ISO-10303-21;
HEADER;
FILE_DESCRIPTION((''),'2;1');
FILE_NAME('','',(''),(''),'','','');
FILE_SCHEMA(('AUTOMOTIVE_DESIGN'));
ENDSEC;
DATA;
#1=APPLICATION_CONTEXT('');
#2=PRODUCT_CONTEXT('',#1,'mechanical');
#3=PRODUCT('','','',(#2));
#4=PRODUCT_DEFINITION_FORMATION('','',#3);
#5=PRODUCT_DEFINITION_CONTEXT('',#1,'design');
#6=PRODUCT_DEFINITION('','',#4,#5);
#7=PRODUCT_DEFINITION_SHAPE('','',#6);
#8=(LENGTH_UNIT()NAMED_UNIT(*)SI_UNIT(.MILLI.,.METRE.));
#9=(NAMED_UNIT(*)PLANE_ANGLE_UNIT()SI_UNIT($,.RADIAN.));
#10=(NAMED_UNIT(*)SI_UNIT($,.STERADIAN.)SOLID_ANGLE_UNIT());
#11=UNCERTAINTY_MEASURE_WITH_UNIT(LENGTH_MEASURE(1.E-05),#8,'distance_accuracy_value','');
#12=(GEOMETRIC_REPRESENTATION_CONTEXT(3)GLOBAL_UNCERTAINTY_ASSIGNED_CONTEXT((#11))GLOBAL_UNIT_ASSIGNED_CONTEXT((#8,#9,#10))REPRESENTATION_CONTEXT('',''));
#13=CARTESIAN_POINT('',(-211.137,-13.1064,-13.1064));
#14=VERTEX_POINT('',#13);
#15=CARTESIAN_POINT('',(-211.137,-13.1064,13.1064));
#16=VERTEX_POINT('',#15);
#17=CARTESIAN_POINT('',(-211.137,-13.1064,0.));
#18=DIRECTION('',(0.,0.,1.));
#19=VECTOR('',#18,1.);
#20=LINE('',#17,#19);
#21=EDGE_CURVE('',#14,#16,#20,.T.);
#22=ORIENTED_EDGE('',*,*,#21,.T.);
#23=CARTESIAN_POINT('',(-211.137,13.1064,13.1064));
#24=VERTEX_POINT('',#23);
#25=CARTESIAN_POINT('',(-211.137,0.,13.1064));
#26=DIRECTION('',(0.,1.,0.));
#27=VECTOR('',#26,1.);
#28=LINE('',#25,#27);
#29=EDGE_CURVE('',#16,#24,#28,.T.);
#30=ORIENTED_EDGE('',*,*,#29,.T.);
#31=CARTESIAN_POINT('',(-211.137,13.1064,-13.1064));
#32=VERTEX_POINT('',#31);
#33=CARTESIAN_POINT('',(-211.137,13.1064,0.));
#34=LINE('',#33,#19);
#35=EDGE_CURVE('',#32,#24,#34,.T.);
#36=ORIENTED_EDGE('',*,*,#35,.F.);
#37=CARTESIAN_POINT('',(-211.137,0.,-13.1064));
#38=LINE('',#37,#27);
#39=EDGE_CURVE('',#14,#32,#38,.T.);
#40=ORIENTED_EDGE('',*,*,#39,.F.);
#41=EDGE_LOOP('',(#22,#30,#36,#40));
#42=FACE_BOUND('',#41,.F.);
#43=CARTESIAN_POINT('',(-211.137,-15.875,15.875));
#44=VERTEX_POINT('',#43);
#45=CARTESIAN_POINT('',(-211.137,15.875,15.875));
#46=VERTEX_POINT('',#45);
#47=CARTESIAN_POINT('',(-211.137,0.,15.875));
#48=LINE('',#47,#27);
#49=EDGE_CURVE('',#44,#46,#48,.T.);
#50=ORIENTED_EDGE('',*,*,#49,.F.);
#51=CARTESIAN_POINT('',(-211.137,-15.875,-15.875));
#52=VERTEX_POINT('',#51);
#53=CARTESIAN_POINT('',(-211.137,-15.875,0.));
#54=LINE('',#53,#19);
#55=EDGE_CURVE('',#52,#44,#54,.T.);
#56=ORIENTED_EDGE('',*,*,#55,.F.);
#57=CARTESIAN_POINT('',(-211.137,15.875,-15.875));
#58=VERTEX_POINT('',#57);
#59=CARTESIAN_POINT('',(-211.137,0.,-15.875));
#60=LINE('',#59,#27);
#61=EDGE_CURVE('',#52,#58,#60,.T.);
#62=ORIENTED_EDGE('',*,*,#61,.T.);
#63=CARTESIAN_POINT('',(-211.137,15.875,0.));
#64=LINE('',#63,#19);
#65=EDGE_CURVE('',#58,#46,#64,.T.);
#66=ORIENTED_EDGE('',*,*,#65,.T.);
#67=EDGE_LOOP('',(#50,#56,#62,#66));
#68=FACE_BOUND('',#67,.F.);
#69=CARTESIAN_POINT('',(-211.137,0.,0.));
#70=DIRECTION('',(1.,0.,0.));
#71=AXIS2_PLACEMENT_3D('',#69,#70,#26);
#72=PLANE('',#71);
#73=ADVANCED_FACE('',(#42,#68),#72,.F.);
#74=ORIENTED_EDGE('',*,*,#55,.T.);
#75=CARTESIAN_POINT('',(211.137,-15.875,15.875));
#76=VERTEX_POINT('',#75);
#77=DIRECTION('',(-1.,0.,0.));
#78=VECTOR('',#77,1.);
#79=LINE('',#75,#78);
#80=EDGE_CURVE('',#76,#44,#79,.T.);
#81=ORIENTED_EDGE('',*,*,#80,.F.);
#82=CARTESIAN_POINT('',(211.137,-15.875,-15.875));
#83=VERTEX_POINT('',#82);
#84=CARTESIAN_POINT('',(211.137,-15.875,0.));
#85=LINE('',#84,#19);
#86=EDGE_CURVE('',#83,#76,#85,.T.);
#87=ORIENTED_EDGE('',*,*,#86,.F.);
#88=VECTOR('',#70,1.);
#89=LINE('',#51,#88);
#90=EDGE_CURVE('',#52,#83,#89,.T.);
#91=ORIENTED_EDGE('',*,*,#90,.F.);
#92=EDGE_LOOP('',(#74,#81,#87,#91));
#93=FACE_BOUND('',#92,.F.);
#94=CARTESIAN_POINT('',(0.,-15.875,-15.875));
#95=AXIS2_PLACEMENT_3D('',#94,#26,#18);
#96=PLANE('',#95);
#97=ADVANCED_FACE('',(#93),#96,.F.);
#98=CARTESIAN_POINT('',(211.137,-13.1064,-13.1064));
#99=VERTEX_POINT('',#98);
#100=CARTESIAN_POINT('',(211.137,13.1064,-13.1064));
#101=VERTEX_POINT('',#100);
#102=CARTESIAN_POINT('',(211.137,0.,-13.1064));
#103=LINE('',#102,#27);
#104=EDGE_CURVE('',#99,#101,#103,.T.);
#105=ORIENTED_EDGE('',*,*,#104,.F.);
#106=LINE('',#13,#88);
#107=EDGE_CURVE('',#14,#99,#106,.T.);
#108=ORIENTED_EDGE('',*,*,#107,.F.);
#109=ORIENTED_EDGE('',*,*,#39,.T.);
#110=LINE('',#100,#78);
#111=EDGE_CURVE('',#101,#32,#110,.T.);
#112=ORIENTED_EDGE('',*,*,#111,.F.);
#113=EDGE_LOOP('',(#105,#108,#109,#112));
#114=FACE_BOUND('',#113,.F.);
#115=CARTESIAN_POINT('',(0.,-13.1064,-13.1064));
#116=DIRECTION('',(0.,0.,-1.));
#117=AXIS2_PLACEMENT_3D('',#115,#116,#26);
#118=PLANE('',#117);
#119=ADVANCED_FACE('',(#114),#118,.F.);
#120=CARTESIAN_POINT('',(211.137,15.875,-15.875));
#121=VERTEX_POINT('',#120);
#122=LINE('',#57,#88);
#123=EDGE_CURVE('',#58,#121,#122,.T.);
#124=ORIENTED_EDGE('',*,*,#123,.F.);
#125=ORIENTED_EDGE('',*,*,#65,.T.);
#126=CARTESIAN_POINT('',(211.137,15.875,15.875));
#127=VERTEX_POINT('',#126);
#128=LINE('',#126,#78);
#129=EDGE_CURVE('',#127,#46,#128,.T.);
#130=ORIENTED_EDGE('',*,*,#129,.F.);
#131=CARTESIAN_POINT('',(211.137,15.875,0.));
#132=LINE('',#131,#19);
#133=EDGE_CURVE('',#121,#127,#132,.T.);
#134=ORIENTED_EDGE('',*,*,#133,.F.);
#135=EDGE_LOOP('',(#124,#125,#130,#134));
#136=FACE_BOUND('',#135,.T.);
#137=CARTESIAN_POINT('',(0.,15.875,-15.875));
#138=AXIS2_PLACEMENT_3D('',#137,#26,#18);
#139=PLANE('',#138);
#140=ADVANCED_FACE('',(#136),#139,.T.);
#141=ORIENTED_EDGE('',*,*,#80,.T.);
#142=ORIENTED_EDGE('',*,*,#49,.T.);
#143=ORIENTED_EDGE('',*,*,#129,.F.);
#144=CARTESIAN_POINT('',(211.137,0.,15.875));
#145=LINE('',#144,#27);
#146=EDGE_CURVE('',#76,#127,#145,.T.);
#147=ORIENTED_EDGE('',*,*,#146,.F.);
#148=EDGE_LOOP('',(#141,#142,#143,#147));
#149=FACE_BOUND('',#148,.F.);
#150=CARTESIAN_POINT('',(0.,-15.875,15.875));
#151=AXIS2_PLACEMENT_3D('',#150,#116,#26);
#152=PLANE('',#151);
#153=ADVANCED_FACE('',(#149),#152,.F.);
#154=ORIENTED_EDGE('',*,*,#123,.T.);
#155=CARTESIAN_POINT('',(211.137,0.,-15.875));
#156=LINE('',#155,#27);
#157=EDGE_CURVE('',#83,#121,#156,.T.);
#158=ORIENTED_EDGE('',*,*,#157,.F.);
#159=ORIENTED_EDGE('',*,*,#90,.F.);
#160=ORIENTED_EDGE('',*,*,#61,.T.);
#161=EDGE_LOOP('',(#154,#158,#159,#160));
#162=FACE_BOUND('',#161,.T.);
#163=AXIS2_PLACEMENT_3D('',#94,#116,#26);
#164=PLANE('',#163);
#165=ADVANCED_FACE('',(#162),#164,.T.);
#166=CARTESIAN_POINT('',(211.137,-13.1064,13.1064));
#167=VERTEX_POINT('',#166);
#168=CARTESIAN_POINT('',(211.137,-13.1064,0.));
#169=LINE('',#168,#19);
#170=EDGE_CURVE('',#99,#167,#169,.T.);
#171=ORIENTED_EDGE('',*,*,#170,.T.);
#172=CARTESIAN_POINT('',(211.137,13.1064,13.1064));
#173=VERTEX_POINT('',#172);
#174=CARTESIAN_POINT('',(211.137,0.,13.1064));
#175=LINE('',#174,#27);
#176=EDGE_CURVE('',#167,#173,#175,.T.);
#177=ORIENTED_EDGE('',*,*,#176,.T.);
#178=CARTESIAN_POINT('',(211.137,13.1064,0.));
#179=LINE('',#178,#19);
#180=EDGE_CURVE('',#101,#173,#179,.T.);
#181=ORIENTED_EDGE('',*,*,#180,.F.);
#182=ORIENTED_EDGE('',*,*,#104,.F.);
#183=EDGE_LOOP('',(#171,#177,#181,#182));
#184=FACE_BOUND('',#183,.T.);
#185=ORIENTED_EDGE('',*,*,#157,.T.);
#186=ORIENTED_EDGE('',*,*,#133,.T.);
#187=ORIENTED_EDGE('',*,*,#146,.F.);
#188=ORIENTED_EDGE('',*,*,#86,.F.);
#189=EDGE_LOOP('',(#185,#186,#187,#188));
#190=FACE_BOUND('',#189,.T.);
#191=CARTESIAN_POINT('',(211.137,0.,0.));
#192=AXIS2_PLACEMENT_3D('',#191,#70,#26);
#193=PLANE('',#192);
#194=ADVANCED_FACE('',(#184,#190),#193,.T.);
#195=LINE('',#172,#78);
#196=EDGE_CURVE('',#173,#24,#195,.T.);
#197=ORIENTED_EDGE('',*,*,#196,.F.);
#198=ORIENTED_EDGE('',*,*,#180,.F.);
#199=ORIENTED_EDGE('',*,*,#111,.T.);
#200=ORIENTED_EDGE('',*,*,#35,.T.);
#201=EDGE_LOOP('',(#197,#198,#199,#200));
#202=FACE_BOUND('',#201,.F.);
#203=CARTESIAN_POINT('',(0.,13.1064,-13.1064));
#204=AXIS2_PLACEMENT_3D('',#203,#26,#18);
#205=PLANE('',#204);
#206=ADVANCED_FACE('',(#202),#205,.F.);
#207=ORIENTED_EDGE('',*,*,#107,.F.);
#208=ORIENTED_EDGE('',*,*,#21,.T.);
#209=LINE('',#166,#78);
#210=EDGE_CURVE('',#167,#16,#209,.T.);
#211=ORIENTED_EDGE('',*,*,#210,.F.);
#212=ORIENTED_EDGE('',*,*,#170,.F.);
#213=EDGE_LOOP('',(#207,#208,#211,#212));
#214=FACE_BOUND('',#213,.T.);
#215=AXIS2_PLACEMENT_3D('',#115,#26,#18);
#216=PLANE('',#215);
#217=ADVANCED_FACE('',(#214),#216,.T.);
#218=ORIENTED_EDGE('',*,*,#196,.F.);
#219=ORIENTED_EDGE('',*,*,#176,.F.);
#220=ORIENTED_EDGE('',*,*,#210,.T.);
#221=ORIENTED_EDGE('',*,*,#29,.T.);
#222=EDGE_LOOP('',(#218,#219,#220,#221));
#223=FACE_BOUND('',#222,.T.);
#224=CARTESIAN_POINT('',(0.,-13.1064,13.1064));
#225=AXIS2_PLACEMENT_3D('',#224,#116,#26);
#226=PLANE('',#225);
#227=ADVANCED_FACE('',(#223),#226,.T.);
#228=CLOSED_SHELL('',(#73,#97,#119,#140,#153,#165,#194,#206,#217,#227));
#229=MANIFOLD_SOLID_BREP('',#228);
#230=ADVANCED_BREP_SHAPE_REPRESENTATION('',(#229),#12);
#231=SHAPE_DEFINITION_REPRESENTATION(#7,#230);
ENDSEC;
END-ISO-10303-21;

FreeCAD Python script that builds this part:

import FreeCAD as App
import Part
import Sketcher

V = App.Vector
Q = App.Units.Quantity


def add_polygon(sketch, points):
    """Adds a closed chain of lines whose ends are joined by coincident constraints."""
    first, n = sketch.GeometryCount, len(points)
    for a, b in zip(points, points[1:] + points[:1]):
        sketch.addGeometry(Part.LineSegment(App.Vector(*a, 0), App.Vector(*b, 0)), False)
    for i in range(n):
        sketch.addConstraint(Sketcher.Constraint("Coincident", first + i, 2, first + (i + 1) % n, 1))

doc = App.newDocument("Part")
body = doc.addObject("PartDesign::Body", "Body")

sketch1 = doc.addObject("Sketcher::SketchObject", "Sketch")
body.addObject(sketch1)
sketch1.AttachmentSupport = (doc.YZ_Plane, [""])
sketch1.MapMode = "FlatFace"
add_polygon(sketch1, [(-16, 16), (-16, -16), (16, -16), (16, 16)])
add_polygon(sketch1, [(13, -13), (-13, -13), (-13, 13), (13, 13)])
sketch1.addConstraint(Sketcher.Constraint("Vertical", 0))
sketch1.addConstraint(Sketcher.Constraint("Horizontal", 1))
sketch1.addConstraint(Sketcher.Constraint("Vertical", 2))
sketch1.addConstraint(Sketcher.Constraint("Horizontal", 3))
sketch1.addConstraint(Sketcher.Constraint("Horizontal", 4))
sketch1.addConstraint(Sketcher.Constraint("Vertical", 5))
sketch1.addConstraint(Sketcher.Constraint("Horizontal", 6))
sketch1.addConstraint(Sketcher.Constraint("Vertical", 7))
sketch1.addConstraint(Sketcher.Constraint("Symmetric", 0, 2, 2, 2, -1, 1))
sketch1.addConstraint(Sketcher.Constraint("Symmetric", 4, 2, 6, 2, -1, 1))
sketch1.addConstraint(Sketcher.Constraint("Equal", 3, 0))
sketch1.addConstraint(Sketcher.Constraint("Equal", 6, 5))
sketch1.addConstraint(Sketcher.Constraint("DistanceX", 1, 1, 1, 2, Q("1.25 in")))
sketch1.addConstraint(Sketcher.Constraint("DistanceX", 4, 2, 4, 1, Q("1.032 in")))
pad1 = doc.addObject("PartDesign::Pad", "Pad")
body.addObject(pad1)
pad1.Profile = sketch1
pad1.Type = "TwoLengths"
pad1.Length = 211.137
pad1.Length2 = 211.137

doc.recompute()
